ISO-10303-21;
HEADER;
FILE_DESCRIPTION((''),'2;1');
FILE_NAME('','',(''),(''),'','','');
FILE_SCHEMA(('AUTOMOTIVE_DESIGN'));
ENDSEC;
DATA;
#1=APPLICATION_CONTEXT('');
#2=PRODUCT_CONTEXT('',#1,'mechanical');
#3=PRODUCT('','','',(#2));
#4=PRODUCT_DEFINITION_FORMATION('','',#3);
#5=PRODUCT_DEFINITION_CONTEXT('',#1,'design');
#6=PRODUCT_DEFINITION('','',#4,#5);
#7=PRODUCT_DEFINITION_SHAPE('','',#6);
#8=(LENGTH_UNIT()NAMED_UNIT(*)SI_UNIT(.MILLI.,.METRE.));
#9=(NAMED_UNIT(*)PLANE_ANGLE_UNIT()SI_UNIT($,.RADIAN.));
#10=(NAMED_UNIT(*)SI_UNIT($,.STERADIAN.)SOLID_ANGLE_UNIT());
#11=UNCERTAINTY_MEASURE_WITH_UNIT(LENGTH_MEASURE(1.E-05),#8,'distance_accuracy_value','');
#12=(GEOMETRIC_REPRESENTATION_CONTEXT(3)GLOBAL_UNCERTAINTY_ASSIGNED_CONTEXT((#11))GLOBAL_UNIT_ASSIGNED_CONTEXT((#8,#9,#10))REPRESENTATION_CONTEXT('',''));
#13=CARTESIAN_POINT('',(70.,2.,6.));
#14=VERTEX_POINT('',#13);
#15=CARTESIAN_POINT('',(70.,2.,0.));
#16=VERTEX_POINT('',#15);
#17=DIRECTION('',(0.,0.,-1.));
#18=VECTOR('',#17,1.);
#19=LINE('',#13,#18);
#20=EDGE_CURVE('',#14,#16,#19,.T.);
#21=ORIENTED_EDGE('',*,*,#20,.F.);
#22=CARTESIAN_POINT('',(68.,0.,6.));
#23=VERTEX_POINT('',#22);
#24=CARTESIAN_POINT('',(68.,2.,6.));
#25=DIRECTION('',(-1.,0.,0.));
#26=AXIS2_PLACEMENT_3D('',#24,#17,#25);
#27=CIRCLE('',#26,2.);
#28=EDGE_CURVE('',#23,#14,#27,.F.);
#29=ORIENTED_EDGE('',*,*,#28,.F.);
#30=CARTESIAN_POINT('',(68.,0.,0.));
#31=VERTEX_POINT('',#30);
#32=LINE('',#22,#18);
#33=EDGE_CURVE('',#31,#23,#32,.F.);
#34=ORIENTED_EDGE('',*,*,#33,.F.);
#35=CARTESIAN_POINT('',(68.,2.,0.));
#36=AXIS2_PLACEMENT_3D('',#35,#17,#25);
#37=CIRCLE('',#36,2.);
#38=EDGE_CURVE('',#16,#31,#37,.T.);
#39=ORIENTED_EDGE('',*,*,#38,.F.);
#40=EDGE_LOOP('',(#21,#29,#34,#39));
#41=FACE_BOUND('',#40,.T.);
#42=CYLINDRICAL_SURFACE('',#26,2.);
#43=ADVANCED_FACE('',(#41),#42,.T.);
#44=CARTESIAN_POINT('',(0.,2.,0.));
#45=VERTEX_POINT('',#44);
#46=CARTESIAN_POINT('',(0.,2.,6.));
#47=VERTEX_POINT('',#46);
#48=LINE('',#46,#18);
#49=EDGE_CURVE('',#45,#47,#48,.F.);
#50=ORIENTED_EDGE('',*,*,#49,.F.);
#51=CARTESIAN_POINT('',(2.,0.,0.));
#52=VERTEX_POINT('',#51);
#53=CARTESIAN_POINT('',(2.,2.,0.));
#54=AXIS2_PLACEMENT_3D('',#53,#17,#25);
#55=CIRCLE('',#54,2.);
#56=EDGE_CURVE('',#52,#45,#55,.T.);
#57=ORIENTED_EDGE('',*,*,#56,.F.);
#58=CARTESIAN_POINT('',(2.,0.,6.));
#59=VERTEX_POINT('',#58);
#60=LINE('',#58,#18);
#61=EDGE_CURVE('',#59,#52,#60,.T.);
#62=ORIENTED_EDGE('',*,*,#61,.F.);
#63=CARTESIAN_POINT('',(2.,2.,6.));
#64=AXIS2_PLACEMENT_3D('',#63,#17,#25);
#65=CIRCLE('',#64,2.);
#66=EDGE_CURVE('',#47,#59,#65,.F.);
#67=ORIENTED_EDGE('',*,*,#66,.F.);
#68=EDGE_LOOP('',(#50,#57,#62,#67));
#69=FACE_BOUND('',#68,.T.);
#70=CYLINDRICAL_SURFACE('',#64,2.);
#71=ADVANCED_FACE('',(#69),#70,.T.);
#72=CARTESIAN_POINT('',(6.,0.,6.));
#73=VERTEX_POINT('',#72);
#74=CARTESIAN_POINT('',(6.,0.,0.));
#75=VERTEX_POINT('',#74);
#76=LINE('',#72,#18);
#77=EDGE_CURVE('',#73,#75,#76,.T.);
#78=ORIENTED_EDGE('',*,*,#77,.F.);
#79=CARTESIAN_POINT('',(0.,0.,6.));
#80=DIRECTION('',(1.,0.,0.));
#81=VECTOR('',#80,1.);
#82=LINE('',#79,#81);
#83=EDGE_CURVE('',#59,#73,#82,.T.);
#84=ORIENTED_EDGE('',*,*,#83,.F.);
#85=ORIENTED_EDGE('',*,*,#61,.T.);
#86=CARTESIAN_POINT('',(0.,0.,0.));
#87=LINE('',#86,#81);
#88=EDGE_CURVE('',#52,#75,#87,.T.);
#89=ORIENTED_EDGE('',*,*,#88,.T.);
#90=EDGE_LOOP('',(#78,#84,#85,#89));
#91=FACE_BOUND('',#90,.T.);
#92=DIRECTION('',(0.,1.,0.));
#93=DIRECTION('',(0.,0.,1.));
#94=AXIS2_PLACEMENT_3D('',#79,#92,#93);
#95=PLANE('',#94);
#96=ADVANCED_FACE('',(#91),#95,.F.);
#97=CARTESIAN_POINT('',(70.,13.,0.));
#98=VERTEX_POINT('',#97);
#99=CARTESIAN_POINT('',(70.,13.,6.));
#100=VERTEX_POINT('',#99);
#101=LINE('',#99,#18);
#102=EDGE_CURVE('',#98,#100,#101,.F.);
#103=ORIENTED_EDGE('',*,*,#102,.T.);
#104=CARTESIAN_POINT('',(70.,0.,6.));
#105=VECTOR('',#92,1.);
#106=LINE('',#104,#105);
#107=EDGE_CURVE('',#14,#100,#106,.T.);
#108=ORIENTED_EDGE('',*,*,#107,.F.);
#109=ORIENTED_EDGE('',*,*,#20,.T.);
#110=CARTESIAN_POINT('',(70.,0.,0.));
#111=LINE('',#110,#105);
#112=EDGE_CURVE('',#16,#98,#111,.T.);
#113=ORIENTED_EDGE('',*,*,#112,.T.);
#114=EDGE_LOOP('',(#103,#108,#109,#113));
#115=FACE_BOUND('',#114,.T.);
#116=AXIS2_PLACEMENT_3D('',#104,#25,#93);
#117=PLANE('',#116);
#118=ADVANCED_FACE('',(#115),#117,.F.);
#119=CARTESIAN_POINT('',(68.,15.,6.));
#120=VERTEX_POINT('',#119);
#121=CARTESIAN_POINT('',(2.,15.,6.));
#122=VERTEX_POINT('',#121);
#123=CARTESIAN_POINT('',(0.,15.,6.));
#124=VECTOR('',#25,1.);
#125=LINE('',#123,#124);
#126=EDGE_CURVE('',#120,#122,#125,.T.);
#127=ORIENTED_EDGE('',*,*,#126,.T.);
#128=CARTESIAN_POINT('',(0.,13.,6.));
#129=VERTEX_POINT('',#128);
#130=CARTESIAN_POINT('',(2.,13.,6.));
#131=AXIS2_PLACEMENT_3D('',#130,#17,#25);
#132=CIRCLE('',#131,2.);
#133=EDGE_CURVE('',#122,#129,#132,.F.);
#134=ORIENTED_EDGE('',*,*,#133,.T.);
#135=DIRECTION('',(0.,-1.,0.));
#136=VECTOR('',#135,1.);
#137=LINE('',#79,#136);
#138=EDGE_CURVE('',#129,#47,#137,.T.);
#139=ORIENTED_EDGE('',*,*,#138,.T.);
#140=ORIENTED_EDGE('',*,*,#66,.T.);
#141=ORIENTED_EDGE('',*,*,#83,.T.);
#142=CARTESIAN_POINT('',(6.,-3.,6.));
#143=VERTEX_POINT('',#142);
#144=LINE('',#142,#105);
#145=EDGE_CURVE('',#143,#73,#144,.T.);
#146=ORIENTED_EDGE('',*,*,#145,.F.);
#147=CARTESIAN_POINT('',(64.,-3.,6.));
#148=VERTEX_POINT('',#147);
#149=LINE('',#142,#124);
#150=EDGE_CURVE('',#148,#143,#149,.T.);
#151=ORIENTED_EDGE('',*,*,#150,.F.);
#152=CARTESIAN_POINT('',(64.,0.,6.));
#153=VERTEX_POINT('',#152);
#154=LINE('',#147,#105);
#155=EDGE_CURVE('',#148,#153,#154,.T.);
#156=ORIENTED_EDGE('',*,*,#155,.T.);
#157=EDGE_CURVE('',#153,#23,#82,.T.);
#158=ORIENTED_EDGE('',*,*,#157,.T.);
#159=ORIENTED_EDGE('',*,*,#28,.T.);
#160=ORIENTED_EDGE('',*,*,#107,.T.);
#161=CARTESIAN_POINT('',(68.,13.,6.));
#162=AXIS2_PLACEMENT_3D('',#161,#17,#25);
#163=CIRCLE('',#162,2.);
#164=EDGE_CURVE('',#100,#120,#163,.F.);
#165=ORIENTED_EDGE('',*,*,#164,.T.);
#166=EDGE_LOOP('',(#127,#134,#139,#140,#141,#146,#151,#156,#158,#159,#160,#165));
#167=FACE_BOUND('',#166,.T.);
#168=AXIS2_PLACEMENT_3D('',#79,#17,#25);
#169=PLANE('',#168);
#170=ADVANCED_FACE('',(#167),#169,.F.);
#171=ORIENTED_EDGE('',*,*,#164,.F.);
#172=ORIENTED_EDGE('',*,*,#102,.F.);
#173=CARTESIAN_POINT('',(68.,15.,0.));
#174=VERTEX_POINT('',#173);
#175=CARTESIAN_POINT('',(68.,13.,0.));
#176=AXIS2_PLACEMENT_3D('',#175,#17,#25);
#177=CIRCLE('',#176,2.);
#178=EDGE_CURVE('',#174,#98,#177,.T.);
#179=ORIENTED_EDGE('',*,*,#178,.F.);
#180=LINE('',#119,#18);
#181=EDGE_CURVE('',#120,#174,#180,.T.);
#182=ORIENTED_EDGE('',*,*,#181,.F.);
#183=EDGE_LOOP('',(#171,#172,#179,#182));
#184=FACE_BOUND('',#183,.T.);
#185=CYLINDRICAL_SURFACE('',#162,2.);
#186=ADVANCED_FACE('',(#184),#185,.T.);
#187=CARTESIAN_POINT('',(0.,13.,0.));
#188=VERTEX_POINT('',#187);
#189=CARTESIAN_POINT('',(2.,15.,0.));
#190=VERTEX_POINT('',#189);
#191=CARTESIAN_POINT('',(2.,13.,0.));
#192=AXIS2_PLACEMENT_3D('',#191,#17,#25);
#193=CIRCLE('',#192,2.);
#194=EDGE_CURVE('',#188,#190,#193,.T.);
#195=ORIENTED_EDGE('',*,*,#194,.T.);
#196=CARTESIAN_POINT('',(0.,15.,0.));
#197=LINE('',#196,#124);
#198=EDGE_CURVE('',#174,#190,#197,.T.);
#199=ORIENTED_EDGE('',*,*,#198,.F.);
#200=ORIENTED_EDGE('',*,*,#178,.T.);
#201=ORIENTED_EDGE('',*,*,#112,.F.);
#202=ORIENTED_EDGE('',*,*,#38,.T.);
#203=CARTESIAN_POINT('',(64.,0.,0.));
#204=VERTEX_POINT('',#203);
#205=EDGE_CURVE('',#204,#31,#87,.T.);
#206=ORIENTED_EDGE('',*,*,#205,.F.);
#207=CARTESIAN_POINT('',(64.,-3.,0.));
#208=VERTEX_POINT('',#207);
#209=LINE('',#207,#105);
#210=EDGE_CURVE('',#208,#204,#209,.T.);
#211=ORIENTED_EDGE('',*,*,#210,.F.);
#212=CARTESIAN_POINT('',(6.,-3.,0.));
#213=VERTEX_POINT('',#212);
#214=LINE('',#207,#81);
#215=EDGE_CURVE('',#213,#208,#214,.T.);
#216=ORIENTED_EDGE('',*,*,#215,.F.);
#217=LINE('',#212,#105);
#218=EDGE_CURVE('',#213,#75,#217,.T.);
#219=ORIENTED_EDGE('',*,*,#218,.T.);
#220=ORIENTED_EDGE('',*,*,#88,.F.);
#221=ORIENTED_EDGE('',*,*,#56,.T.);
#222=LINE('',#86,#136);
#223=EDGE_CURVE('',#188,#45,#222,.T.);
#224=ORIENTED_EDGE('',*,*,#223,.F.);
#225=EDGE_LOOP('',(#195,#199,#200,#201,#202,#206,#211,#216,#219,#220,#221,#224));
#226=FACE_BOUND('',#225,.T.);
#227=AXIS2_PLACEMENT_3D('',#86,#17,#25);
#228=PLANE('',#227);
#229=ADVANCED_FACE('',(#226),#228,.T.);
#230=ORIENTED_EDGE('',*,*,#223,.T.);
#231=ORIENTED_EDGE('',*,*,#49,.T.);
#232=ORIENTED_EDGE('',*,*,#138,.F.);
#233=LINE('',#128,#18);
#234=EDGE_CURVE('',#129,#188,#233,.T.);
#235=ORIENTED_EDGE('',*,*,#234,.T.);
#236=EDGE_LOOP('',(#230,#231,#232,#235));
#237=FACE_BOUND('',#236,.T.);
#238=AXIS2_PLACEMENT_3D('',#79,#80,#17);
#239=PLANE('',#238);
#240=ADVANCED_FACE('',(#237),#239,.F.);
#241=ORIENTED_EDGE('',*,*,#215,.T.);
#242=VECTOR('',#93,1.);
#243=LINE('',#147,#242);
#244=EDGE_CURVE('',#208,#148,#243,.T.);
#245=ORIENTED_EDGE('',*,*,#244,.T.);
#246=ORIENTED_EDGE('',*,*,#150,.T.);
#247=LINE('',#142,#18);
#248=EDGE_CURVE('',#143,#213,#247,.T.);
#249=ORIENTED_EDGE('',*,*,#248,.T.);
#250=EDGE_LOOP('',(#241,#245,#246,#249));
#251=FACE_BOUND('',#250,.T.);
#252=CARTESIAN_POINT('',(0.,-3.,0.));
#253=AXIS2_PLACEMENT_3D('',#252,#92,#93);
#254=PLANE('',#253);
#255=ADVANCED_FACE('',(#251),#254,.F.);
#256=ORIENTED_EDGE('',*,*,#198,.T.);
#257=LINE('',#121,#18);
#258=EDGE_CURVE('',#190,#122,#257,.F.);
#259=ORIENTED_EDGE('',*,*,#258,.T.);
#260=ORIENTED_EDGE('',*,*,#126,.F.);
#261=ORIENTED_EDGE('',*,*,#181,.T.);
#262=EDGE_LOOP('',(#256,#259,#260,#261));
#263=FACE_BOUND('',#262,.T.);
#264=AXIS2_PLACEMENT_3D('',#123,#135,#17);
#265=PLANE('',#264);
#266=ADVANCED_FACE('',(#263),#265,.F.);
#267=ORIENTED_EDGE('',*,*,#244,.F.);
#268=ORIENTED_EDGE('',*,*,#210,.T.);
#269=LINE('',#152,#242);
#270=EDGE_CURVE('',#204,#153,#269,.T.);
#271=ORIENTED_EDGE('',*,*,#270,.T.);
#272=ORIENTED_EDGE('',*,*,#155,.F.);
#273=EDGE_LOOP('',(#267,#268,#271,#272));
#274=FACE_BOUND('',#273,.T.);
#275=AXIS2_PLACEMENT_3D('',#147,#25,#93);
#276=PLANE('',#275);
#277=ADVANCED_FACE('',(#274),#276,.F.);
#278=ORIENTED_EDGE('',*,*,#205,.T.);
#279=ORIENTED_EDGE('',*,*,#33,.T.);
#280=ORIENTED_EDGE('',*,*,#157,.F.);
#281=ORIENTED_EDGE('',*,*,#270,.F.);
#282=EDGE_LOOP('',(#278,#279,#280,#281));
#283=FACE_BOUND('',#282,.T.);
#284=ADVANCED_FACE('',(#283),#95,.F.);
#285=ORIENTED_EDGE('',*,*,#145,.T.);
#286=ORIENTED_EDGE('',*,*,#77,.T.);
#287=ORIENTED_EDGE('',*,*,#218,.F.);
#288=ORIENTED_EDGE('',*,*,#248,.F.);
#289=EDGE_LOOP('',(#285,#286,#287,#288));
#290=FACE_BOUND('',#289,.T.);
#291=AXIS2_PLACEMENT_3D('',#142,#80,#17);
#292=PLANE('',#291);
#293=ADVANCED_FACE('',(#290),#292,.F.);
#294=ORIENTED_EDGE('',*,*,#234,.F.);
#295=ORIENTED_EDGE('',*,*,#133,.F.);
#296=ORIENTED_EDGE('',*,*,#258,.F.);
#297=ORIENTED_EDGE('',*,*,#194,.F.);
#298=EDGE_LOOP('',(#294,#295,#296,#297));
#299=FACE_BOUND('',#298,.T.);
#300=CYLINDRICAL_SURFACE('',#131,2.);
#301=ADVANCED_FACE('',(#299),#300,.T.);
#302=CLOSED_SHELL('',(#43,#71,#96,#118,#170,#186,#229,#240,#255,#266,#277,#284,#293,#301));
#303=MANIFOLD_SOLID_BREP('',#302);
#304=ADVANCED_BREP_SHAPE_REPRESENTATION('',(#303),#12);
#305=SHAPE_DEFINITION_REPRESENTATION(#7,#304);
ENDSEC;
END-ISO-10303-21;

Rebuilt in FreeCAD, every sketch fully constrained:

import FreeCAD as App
import Part
import Sketcher

V = App.Vector
Q = App.Units.Quantity


def edges_at(feature, points):
    """Names of the edges that pass closest to the given points."""
    edges = feature.Shape.Edges
    near = lambda p: min(range(len(edges)), key=lambda i: edges[i].distToShape(Part.Vertex(*p))[0])
    return sorted({f"Edge{near(p) + 1}" for p in points})


def add_polygon(sketch, points):
    """Adds a closed chain of lines whose ends are joined by coincident constraints."""
    first, n = sketch.GeometryCount, len(points)
    for a, b in zip(points, points[1:] + points[:1]):
        sketch.addGeometry(Part.LineSegment(App.Vector(*a, 0), App.Vector(*b, 0)), False)
    for i in range(n):
        sketch.addConstraint(Sketcher.Constraint("Coincident", first + i, 2, first + (i + 1) % n, 1))

doc = App.newDocument("Part")
body = doc.addObject("PartDesign::Body", "Body")

sketch1 = body.newObject("Sketcher::SketchObject", "Sketch")
sketch1.AttachmentSupport = (doc.getObject("XY_Plane"), [""])
sketch1.MapMode = "FlatFace"
add_polygon(sketch1, [(0, 15), (0, 0), (70, 0), (70, 15)])
sketch1.addConstraint([
    Sketcher.Constraint("Vertical", 0),
    Sketcher.Constraint("Horizontal", 1),
    Sketcher.Constraint("Vertical", 2),
    Sketcher.Constraint("Horizontal", 3),
    Sketcher.Constraint("Coincident", 0, 2, -1, 1),
    Sketcher.Constraint("DistanceX", 1, 1, 1, 2, Q("70 mm")),
    Sketcher.Constraint("DistanceY", 0, 2, 0, 1, Q("15 mm")),
])
pad1 = body.newObject("PartDesign::Pad", "Pad")
pad1.Profile = sketch1
pad1.Length = 6
doc.recompute()

fillet = body.newObject("PartDesign::Fillet", "Fillet")
fillet.Base = (pad1, edges_at(pad1, [
    (0, 15, 3),
    (70, 15, 3),
    (70, 0, 3),
    (0, 0, 3),
]))
fillet.Radius = 2

sketch2 = body.newObject("Sketcher::SketchObject", "Sketch001")
sketch2.AttachmentSupport = (doc.getObject("XZ_Plane"), [""])
sketch2.MapMode = "FlatFace"
add_polygon(sketch2, [(6, 6), (6, 0), (64, 0), (64, 6)])
sketch2.addConstraint([
    Sketcher.Constraint("Vertical", 0),
    Sketcher.Constraint("Horizontal", 1),
    Sketcher.Constraint("Vertical", 2),
    Sketcher.Constraint("Horizontal", 3),
    Sketcher.Constraint("PointOnObject", 0, 2, -1),
    Sketcher.Constraint("DistanceX", 1, 1, 1, 2, Q("58 mm")),
    Sketcher.Constraint("DistanceY", 0, 2, 0, 1, Q("6 mm")),
    Sketcher.Constraint("DistanceX", -1, 1, 0, 2, Q("6 mm")),
])
pad2 = body.newObject("PartDesign::Pad", "Pad001")
pad2.Profile = sketch2
pad2.Length = 3

doc.recompute()
